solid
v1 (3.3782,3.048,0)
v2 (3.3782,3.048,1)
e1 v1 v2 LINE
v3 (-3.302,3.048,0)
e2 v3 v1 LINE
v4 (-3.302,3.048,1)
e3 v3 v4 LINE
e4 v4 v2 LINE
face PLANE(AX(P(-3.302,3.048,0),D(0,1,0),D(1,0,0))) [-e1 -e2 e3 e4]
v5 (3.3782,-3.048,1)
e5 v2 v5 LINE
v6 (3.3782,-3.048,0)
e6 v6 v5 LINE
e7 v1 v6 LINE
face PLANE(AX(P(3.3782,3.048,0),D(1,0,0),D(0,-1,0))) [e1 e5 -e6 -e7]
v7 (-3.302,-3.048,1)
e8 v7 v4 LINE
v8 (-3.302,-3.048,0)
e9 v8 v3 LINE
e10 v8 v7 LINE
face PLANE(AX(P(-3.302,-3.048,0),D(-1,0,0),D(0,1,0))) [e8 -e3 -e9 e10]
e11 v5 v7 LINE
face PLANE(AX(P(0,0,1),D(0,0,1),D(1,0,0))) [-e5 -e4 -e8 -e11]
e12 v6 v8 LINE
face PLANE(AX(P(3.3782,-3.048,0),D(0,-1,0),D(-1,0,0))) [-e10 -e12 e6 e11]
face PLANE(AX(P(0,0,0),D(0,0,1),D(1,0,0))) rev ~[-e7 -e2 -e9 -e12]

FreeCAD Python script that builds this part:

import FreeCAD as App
import Part
import Sketcher

V = App.Vector
Q = App.Units.Quantity


def add_polygon(sketch, points):
    """Adds a closed chain of lines whose ends are joined by coincident constraints."""
    first, n = sketch.GeometryCount, len(points)
    for a, b in zip(points, points[1:] + points[:1]):
        sketch.addGeometry(Part.LineSegment(App.Vector(*a, 0), App.Vector(*b, 0)), False)
    for i in range(n):
        sketch.addConstraint(Sketcher.Constraint("Coincident", first + i, 2, first + (i + 1) % n, 1))

doc = App.newDocument("Part")
body = doc.addObject("PartDesign::Body", "Body")

# Sketch on XY plane
sketch1 = body.newObject("Sketcher::SketchObject", "Sketch")
sketch1.AttachmentSupport = (doc.getObject("XY_Plane"), [""])
sketch1.MapMode = "FlatFace"
add_polygon(sketch1, [(3.3782, 3.048), (-3.302, 3.048), (-3.302, -3.048), (3.3782, -3.048)])  # lines 0-3
sketch1.addConstraint(Sketcher.Constraint("Horizontal", 0))
sketch1.addConstraint(Sketcher.Constraint("Vertical", 1))
sketch1.addConstraint(Sketcher.Constraint("Horizontal", 2))
sketch1.addConstraint(Sketcher.Constraint("Vertical", 3))
sketch1.addConstraint(Sketcher.Constraint("DistanceY", 1, 2, 1, 1, Q("0.24 in")))
sketch1.addConstraint(Sketcher.Constraint("DistanceX", 0, 2, 0, 1, Q("0.263 in")))
sketch1.addConstraint(Sketcher.Constraint("DistanceX", 0, 2, -1, 1, Q("0.13 in")))
sketch1.addConstraint(Sketcher.Constraint("DistanceY", -1, 1, 0, 2, Q("0.12 in")))
pad1 = body.newObject("PartDesign::Pad", "Pad")
pad1.Profile = sketch1
pad1.Length = 1

doc.recompute()
